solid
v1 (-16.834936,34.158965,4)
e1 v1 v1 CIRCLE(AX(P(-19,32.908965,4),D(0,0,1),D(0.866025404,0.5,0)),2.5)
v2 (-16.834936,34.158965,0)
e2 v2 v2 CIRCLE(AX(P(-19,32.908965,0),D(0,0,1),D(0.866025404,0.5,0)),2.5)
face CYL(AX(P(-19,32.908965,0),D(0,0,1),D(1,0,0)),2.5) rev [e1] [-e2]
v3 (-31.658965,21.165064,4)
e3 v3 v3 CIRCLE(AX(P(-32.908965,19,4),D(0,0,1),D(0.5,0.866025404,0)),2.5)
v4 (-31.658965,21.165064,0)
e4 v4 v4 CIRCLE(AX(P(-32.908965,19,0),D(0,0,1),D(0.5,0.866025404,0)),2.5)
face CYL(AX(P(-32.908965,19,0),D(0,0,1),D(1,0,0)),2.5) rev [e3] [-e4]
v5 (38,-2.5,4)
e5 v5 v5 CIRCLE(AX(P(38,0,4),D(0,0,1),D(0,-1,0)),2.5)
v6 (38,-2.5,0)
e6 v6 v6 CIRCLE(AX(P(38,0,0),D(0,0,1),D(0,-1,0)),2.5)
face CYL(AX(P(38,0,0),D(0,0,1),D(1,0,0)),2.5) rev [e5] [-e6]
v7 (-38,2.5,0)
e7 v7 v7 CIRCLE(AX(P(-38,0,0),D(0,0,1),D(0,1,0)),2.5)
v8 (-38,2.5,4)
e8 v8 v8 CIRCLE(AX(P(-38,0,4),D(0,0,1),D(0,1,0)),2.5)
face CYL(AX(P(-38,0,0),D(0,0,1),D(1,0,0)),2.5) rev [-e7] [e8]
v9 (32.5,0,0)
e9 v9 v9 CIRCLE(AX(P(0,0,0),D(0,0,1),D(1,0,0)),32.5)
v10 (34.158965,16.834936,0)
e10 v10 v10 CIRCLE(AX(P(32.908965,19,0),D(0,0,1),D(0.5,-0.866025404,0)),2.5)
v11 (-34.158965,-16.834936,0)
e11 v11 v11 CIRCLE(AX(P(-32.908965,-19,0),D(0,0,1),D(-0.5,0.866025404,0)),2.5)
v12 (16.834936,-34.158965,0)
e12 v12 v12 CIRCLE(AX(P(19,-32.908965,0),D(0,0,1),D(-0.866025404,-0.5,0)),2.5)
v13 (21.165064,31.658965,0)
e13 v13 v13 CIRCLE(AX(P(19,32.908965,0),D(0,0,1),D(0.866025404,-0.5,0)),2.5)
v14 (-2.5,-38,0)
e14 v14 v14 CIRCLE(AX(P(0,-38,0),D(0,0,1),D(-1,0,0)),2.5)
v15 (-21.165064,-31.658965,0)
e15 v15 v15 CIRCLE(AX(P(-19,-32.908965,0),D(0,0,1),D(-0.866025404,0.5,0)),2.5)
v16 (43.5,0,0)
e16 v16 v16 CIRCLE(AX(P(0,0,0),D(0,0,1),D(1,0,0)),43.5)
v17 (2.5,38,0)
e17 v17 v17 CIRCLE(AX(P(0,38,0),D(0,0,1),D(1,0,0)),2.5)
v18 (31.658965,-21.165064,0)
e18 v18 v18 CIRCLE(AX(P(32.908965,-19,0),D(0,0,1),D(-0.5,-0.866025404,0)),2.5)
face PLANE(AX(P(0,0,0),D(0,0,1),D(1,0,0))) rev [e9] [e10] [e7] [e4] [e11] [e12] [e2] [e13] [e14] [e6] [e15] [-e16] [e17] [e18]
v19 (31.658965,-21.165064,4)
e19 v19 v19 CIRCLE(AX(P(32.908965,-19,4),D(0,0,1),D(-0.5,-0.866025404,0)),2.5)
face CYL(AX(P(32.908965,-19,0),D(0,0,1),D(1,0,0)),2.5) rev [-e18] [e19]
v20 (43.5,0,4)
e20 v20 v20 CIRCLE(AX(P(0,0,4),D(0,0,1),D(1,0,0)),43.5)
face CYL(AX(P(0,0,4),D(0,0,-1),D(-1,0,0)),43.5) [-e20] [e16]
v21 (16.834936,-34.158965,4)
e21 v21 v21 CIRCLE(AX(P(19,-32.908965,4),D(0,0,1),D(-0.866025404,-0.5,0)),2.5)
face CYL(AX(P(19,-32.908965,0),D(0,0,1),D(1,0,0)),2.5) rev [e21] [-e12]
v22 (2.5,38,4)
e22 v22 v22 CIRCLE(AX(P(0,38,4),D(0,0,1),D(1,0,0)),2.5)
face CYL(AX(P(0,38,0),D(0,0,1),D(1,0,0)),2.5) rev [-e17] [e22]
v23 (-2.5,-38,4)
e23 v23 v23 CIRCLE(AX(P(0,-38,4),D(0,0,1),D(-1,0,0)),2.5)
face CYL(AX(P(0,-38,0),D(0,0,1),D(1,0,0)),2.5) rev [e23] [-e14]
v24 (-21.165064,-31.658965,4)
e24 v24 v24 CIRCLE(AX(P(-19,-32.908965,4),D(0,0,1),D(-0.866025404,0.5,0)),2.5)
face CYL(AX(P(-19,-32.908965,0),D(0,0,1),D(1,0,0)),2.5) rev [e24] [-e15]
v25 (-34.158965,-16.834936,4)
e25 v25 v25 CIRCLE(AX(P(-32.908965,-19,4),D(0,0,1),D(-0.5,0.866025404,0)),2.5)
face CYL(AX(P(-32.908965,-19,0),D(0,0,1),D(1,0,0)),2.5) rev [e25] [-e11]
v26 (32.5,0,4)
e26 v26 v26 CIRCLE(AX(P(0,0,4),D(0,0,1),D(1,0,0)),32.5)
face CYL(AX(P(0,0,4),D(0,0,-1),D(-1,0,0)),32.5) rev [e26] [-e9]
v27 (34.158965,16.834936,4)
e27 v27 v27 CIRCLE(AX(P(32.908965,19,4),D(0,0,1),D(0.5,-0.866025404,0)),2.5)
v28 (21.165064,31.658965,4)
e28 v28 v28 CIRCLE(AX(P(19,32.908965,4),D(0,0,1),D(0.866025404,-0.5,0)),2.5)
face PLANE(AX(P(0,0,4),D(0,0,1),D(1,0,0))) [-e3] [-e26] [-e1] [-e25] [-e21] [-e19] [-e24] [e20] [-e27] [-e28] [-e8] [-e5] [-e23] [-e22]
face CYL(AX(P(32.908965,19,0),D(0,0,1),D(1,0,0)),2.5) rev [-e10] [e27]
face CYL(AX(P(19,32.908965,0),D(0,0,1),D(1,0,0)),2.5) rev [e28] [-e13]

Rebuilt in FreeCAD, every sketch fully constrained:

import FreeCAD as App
import Part
import Sketcher
Q = App.Units.Quantity

doc = App.newDocument("Part")
body = doc.addObject("PartDesign::Body", "Body")

# Sketch on XY plane
sketch1 = body.newObject("Sketcher::SketchObject", "Sketch")
sketch1.AttachmentSupport = (doc.getObject("XY_Plane"), [""])
sketch1.MapMode = "FlatFace"
sketch1.addGeometry(Part.Circle(App.Vector(0, 0, 0), App.Vector(0, 0, 1), 44), False)
sketch1.addGeometry(Part.Circle(App.Vector(0, 0, 0), App.Vector(0, 0, 1), 32), False)
sketch1.addConstraint(Sketcher.Constraint("Coincident", 0, 3, -1, 1))
sketch1.addConstraint(Sketcher.Constraint("Coincident", 1, 3, -1, 1))
sketch1.addConstraint(Sketcher.Constraint("Diameter", 0, Q("87 mm")))
sketch1.addConstraint(Sketcher.Constraint("Diameter", 1, Q("65 mm")))
pad1 = body.newObject("PartDesign::Pad", "Pad")
pad1.Profile = sketch1
pad1.Length = 4

# Sketch on XY plane
sketch2 = body.newObject("Sketcher::SketchObject", "Sketch001")
sketch2.AttachmentSupport = (doc.getObject("XY_Plane"), [""])
sketch2.MapMode = "FlatFace"
sketch2.AttachmentOffset = App.Placement(App.Vector(0, 0, 4), App.Rotation())
sketch2.addGeometry(Part.Circle(App.Vector(0, 38, 0), App.Vector(0, 0, 1), 2.5), False)
sketch2.addConstraint(Sketcher.Constraint("PointOnObject", 0, 3, -2))
sketch2.addConstraint(Sketcher.Constraint("Diameter", 0, Q("5 mm")))
sketch2.addConstraint(Sketcher.Constraint("DistanceY", -1, 1, 0, 3, Q("38 mm")))
pocket1 = body.newObject("PartDesign::Pocket", "Pocket")
pocket1.Profile = sketch2
pocket1.Type = "ThroughAll"
doc.recompute()

polarpattern = body.newObject("PartDesign::PolarPattern", "PolarPattern")
polarpattern.Originals = [pocket1]
polarpattern.Axis = (doc.getObject("Z_Axis"), [""])
polarpattern.Angle = 360
polarpattern.Occurrences = 12
body.Tip = polarpattern

doc.recompute()
